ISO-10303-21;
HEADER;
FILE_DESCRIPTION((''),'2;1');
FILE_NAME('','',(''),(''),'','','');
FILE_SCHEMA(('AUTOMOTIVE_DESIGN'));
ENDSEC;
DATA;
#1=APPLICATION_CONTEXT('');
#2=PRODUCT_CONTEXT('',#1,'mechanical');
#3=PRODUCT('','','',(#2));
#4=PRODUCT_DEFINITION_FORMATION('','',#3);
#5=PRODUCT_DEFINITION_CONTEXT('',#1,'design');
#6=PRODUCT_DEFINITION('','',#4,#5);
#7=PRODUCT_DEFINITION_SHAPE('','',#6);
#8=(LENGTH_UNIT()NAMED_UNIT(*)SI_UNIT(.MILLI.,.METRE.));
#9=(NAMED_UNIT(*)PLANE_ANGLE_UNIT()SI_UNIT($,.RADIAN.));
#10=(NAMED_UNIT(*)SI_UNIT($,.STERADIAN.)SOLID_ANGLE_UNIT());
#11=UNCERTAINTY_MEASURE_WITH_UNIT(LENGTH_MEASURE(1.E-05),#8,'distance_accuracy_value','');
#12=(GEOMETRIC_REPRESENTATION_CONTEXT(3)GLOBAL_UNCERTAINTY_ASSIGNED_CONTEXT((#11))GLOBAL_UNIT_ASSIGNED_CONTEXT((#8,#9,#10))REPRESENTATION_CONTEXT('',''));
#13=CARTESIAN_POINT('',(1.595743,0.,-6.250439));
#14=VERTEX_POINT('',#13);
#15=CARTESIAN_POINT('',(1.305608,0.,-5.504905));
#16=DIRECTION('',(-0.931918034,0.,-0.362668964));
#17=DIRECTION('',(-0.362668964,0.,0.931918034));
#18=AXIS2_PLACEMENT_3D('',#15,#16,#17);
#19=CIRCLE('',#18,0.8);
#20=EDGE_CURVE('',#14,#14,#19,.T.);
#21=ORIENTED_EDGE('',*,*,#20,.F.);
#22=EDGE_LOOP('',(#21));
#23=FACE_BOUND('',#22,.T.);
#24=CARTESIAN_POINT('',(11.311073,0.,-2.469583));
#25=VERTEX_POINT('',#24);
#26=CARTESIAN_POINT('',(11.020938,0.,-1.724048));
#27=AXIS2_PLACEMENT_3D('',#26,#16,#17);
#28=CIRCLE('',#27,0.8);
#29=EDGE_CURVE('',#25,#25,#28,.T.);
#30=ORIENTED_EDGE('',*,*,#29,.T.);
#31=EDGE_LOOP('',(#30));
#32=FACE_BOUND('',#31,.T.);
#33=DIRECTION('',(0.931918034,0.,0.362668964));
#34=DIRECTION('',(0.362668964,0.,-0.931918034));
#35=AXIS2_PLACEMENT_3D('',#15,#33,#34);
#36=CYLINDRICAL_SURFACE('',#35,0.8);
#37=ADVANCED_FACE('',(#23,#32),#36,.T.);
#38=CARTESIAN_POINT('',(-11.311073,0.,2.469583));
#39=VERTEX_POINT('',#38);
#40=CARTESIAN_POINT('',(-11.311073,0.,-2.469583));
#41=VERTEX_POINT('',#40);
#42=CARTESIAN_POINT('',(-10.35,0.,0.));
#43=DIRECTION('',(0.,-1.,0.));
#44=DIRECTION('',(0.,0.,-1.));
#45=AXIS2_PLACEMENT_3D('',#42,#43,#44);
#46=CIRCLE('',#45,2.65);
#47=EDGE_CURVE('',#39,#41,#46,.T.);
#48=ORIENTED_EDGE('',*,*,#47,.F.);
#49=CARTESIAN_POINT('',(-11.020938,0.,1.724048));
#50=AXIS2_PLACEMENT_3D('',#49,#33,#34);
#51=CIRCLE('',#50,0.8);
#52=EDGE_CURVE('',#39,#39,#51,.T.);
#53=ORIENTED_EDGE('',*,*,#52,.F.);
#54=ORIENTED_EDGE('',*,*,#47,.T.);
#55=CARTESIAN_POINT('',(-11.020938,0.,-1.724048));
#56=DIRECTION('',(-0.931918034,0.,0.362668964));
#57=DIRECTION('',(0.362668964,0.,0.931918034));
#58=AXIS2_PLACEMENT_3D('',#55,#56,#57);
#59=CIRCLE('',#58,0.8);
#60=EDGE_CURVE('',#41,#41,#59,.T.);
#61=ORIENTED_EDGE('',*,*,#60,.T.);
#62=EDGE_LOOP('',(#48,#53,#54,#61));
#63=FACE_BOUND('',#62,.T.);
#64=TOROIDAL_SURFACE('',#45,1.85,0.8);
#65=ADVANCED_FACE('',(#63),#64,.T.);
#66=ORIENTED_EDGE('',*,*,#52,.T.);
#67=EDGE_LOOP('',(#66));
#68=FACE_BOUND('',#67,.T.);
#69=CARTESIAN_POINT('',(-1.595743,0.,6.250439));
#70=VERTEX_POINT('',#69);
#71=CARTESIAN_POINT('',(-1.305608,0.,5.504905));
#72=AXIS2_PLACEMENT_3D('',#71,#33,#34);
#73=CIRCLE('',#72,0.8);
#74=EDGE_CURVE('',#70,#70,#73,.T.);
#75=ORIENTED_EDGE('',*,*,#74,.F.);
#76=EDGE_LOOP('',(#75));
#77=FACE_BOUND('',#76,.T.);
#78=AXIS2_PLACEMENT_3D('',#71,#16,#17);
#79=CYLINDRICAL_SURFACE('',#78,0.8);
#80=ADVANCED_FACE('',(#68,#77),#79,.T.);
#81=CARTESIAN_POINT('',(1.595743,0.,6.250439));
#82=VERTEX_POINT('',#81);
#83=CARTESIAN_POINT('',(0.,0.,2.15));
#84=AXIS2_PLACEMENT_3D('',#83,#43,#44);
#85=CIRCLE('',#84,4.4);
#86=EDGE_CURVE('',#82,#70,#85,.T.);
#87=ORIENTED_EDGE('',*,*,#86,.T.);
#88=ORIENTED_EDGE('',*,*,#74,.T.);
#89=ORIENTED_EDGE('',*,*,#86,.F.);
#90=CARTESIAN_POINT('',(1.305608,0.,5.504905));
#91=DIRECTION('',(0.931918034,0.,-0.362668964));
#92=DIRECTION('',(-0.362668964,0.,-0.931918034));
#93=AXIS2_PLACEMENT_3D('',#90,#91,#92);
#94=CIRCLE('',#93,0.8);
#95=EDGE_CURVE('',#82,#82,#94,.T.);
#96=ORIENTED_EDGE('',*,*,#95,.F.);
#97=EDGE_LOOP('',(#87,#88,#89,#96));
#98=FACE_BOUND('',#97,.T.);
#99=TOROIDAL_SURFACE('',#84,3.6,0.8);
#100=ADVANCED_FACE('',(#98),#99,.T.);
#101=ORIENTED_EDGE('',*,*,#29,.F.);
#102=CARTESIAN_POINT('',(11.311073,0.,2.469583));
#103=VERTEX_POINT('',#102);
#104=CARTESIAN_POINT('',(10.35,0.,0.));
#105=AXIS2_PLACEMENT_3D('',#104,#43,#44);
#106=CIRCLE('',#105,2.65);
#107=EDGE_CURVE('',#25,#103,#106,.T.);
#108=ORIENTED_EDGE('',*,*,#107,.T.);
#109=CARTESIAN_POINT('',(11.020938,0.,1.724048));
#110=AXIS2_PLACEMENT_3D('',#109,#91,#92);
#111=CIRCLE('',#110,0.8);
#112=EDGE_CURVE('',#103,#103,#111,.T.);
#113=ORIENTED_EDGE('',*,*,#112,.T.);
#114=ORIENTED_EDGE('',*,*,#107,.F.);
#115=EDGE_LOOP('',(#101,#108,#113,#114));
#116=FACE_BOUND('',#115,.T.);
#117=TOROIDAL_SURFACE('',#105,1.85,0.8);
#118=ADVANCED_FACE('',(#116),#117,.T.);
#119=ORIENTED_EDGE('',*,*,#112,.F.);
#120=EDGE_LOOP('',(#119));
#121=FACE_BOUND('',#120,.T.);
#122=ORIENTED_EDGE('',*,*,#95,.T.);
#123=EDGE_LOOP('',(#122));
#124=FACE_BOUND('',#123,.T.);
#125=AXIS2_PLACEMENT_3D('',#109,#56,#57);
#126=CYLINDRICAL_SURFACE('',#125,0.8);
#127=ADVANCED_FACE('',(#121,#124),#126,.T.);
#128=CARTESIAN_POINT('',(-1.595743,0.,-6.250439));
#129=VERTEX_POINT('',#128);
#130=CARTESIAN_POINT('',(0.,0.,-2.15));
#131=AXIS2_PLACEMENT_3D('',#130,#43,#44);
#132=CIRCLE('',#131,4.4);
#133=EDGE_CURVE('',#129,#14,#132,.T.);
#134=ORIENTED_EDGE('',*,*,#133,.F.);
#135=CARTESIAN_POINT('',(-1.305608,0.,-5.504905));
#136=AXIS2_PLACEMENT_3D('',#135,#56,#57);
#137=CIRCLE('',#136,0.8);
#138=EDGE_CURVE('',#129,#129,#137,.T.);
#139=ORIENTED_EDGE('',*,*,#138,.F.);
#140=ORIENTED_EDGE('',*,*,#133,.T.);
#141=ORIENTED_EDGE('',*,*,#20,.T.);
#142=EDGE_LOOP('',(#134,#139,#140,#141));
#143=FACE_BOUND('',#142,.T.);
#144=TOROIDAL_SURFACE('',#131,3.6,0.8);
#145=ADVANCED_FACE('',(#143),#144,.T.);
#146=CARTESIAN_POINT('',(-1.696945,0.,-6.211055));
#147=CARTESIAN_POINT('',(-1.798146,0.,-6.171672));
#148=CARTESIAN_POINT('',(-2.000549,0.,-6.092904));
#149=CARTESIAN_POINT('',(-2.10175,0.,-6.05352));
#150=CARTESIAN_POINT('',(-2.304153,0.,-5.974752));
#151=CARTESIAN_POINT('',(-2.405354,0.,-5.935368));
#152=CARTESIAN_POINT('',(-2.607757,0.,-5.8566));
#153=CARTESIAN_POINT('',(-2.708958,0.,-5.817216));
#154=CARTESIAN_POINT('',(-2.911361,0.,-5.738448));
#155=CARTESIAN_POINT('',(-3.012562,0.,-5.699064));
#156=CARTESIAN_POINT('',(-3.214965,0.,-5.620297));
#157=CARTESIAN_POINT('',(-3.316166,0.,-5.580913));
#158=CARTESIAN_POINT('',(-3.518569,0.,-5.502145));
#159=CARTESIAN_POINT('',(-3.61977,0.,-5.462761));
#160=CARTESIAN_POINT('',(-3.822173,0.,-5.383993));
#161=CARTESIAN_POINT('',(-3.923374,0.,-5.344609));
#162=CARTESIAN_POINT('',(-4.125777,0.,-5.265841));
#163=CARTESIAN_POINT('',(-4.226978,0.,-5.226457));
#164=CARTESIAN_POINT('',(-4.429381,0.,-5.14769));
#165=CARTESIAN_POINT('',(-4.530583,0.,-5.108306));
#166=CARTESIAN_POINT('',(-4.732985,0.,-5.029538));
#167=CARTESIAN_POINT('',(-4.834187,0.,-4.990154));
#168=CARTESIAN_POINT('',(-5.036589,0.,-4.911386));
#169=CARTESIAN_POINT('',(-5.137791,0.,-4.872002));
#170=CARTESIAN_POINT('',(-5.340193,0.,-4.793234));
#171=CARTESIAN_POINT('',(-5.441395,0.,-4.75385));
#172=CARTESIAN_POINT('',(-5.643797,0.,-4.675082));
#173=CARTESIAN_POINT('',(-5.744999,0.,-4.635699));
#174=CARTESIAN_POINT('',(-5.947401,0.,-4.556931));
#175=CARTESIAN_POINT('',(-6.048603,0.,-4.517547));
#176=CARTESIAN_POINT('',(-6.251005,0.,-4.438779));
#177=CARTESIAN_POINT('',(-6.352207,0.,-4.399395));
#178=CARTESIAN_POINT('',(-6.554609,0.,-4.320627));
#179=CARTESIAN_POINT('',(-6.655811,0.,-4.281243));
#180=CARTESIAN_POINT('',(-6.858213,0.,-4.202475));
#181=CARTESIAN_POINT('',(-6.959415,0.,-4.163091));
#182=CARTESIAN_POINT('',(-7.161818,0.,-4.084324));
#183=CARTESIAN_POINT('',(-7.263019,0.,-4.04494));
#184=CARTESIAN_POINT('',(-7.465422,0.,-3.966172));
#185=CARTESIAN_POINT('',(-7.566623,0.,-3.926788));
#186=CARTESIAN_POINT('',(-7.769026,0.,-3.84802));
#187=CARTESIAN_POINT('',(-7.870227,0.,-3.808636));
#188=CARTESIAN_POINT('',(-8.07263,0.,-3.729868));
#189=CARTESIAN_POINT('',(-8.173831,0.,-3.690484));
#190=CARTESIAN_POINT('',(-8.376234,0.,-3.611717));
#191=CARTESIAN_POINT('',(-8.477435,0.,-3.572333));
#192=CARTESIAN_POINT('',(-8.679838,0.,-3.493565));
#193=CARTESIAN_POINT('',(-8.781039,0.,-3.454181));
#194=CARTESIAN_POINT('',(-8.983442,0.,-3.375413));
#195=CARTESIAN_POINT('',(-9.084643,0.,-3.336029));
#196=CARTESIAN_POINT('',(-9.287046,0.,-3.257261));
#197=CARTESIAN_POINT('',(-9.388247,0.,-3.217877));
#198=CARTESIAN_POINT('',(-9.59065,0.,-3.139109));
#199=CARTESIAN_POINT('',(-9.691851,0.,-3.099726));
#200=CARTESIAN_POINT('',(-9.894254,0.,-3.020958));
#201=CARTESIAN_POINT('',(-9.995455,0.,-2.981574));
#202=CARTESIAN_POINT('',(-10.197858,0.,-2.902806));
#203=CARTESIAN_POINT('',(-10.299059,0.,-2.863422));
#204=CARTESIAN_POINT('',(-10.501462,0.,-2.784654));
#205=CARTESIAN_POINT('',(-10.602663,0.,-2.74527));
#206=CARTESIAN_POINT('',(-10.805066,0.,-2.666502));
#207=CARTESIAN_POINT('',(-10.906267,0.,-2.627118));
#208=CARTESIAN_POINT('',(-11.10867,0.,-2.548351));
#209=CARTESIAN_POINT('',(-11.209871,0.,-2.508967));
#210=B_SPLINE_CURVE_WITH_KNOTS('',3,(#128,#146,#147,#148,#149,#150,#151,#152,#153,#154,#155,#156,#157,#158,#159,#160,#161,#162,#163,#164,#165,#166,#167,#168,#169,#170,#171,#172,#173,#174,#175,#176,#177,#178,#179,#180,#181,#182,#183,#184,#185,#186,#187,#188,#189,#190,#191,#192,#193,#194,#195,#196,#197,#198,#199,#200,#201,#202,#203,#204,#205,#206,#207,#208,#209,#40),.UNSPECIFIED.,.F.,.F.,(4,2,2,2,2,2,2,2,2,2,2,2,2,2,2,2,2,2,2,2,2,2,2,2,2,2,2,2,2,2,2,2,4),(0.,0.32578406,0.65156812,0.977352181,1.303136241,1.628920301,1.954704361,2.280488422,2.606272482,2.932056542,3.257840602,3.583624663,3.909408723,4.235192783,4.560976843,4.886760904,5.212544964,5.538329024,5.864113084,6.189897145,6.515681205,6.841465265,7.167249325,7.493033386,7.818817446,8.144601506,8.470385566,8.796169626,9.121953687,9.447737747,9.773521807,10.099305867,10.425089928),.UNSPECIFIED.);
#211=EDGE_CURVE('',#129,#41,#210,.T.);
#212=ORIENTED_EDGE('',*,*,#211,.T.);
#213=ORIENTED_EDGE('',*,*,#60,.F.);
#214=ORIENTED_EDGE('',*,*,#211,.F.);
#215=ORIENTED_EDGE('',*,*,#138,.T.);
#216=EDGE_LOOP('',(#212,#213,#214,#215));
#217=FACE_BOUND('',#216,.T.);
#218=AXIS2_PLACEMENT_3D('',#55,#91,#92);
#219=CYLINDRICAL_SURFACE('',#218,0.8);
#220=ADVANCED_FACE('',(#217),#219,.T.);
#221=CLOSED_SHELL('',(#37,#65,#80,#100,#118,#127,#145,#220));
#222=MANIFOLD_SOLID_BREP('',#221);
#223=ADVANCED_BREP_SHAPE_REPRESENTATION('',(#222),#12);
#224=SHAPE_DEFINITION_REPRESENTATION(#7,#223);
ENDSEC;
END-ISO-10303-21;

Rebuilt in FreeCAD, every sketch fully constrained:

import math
import FreeCAD as App
import Part
import Sketcher

doc = App.newDocument("Part")
body = doc.addObject("PartDesign::Body", "Body")

# Sketch on an angled plane
sketch1 = body.newObject("Sketcher::SketchObject", "Sketch")
sketch1.Placement = App.Placement(App.Vector(-1.305608, 0, 5.504905), App.Rotation(App.Vector(0.362668964, 0, -0.931918034), App.Vector(0, 1, 0), App.Vector(0.931918034, 0, 0.362668964), "ZXY"))
sketch1.addGeometry(Part.Circle(App.Vector(0, 0, 0), App.Vector(0, 0, 1), 0.8), False)
sketch1.addConstraint([
    Sketcher.Constraint("Coincident", 0, 3, -1, 1),
    Sketcher.Constraint("Diameter", 0, 1.6),
])

# Sketch on XZ plane
sketch2 = body.newObject("Sketcher::SketchObject", "Sketch001")
sketch2.AttachmentSupport = (doc.getObject("XZ_Plane"), [""])
sketch2.MapMode = "FlatFace"
sketch2.addGeometry([
    Part.LineSegment(App.Vector(-11, 1.7, 0), App.Vector(-1.3, 5.5, 0)),  # 0
    Part.ArcOfCircle(Part.Circle(App.Vector(0, 2.1, 0), App.Vector(0, 0, 1), 3.6), math.radians(69), math.radians(111)),  # 1
    Part.LineSegment(App.Vector(1.3, 5.5, 0), App.Vector(11, 1.7, 0)),  # 2
    Part.ArcOfCircle(Part.Circle(App.Vector(10.3, 0, 0), App.Vector(0, 0, 1), 1.9), math.radians(-69), math.radians(69)),  # 3
    Part.LineSegment(App.Vector(11, -1.7, 0), App.Vector(1.3, -5.5, 0)),  # 4
    Part.ArcOfCircle(Part.Circle(App.Vector(0, -2.1, 0), App.Vector(0, 0, 1), 3.6), math.radians(-111), math.radians(-69)),  # 5
    Part.LineSegment(App.Vector(-1.3, -5.5, 0), App.Vector(-11, -1.7, 0)),  # 6
    Part.ArcOfCircle(Part.Circle(App.Vector(-10.3, 0, 0), App.Vector(0, 0, 1), 1.9), math.radians(111), math.radians(249)),  # 7
], False)
sketch2.addConstraint([
    Sketcher.Constraint("Tangent", 0, 2, 1, 2),
    Sketcher.Constraint("Tangent", 1, 1, 2, 1),
    Sketcher.Constraint("Tangent", 2, 2, 3, 2),
    Sketcher.Constraint("Tangent", 3, 1, 4, 1),
    Sketcher.Constraint("Tangent", 4, 2, 5, 2),
    Sketcher.Constraint("Tangent", 5, 1, 6, 1),
    Sketcher.Constraint("Tangent", 6, 2, 7, 2),
    Sketcher.Constraint("Tangent", 7, 1, 0, 1),
    Sketcher.Constraint("Equal", 1, 5),
    Sketcher.Constraint("Equal", 3, 7),
    Sketcher.Constraint("Symmetric", 1, 3, 5, 3, -1, 1),
    Sketcher.Constraint("Symmetric", 3, 3, 7, 3, -1, 1),
    Sketcher.Constraint("Symmetric", 0, 2, 1, 1, -2),
    Sketcher.Constraint("Radius", 1, 3.6),
    Sketcher.Constraint("Radius", 3, 1.85),
    Sketcher.Constraint("DistanceY", 5, 3, 1, 3, 4.3),
    Sketcher.Constraint("DistanceX", 7, 3, 3, 3, 20.7),
])
doc.recompute()

additivepipe = body.newObject("PartDesign::AdditivePipe", "AdditivePipe")
additivepipe.Profile = sketch1
additivepipe.Spine = (sketch2, ["Edge1", "Edge2", "Edge3", "Edge4", "Edge5", "Edge6", "Edge7", "Edge8"])

doc.recompute()
